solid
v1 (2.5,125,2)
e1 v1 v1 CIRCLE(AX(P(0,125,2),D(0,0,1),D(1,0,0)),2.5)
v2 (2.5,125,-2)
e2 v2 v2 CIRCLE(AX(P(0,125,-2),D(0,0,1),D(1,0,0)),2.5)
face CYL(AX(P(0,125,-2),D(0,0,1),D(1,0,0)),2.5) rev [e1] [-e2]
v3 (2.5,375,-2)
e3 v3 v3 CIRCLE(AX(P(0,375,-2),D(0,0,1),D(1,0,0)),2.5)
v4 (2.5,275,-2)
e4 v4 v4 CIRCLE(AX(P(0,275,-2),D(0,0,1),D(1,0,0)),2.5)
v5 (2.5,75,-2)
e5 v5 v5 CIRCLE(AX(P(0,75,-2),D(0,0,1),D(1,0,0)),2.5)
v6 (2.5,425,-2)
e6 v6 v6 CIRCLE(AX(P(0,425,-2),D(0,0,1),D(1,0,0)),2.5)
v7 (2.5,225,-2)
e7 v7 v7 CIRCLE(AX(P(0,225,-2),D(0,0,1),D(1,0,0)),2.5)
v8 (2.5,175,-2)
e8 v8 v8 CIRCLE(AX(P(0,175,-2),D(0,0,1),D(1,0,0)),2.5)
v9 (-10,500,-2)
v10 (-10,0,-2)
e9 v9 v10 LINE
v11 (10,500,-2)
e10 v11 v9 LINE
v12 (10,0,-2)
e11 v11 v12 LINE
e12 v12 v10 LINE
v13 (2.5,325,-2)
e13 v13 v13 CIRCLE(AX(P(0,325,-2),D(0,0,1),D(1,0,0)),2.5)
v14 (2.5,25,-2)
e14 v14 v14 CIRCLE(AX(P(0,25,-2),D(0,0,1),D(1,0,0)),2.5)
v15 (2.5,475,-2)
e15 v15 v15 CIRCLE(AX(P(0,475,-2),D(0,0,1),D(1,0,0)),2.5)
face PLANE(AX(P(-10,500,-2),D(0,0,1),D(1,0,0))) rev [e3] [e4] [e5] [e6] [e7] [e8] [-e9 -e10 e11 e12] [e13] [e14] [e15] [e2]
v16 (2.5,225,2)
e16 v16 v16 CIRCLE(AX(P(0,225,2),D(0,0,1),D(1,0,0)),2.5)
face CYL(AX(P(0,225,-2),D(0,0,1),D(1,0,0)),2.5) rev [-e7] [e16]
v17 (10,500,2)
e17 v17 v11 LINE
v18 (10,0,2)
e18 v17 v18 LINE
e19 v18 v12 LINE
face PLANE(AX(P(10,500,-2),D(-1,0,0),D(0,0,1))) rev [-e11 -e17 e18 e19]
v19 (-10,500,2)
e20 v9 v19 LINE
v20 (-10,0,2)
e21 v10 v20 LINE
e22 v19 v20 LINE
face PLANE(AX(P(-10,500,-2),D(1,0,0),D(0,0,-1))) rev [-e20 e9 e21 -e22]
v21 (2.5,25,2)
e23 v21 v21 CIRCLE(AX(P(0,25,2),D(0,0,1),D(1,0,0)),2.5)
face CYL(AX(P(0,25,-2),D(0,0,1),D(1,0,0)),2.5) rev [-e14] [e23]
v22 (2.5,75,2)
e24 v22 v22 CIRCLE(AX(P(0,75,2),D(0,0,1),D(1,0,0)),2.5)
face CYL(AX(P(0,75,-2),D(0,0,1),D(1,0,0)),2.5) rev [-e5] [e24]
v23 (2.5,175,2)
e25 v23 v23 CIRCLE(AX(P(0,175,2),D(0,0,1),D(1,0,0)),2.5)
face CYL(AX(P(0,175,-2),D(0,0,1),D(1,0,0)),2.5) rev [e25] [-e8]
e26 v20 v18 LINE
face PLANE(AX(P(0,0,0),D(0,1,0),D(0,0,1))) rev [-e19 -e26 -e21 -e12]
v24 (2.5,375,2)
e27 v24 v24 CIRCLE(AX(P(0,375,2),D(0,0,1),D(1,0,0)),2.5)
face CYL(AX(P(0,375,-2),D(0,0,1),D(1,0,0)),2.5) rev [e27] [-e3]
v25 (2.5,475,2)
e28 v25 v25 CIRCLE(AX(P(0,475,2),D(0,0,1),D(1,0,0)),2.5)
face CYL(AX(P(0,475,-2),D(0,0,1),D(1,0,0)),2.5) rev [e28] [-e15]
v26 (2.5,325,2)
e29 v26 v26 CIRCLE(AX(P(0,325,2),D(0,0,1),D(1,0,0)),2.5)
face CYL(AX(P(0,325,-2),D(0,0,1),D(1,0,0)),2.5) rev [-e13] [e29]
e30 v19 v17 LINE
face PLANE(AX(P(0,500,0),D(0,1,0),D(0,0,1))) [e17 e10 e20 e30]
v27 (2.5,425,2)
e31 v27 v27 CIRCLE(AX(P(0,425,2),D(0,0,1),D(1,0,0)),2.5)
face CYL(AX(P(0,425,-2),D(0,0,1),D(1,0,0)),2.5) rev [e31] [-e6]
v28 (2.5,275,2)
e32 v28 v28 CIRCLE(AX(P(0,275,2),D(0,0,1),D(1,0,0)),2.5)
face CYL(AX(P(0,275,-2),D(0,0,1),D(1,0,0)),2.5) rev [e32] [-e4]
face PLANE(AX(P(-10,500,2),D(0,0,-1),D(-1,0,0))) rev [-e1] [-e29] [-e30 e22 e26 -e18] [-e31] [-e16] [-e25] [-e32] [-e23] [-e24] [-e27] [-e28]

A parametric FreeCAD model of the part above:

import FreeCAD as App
import Part
import Sketcher

V = App.Vector
Q = App.Units.Quantity


def add_polygon(sketch, points):
    """Adds a closed chain of lines whose ends are joined by coincident constraints."""
    first, n = sketch.GeometryCount, len(points)
    for a, b in zip(points, points[1:] + points[:1]):
        sketch.addGeometry(Part.LineSegment(App.Vector(*a, 0), App.Vector(*b, 0)), False)
    for i in range(n):
        sketch.addConstraint(Sketcher.Constraint("Coincident", first + i, 2, first + (i + 1) % n, 1))

doc = App.newDocument("Part")
body = doc.addObject("PartDesign::Body", "Body")

sketch1 = body.newObject("Sketcher::SketchObject", "Sketch")
sketch1.AttachmentSupport = (doc.getObject("XZ_Plane"), [""])
sketch1.MapMode = "FlatFace"
add_polygon(sketch1, [(-10, -2), (-10, 2), (10, 2), (10, -2)])
sketch1.addConstraint([
    Sketcher.Constraint("Vertical", 0),
    Sketcher.Constraint("Horizontal", 1),
    Sketcher.Constraint("Vertical", 2),
    Sketcher.Constraint("Horizontal", 3),
    Sketcher.Constraint("Symmetric", 0, 2, 2, 2, -1, 1),
    Sketcher.Constraint("DistanceX", 1, 1, 1, 2, Q("20 mm")),
    Sketcher.Constraint("DistanceY", 0, 1, 0, 2, Q("4 mm")),
])
pad1 = body.newObject("PartDesign::Pad", "Pad")
pad1.Profile = sketch1
pad1.Length = 500
pad1.Reversed = True

sketch2 = body.newObject("Sketcher::SketchObject", "Sketch001")
sketch2.AttachmentSupport = (doc.getObject("XY_Plane"), [""])
sketch2.MapMode = "FlatFace"
sketch2.AttachmentOffset = App.Placement(V(0, 0, 2), App.Rotation())
sketch2.addGeometry([
    Part.Circle(V(0, 25, 0), V(0, 0, 1), 2.5),
    Part.Circle(V(0, 75, 0), V(0, 0, 1), 2.5),
    Part.Circle(V(0, 125, 0), V(0, 0, 1), 2.5),
    Part.Circle(V(0, 175, 0), V(0, 0, 1), 2.5),
    Part.Circle(V(0, 225, 0), V(0, 0, 1), 2.5),
    Part.Circle(V(0, 275, 0), V(0, 0, 1), 2.5),
    Part.Circle(V(0, 325, 0), V(0, 0, 1), 2.5),
    Part.Circle(V(0, 375, 0), V(0, 0, 1), 2.5),
    Part.Circle(V(0, 425, 0), V(0, 0, 1), 2.5),
    Part.Circle(V(0, 475, 0), V(0, 0, 1), 2.5),
], False)
sketch2.addConstraint([
    Sketcher.Constraint("Equal", 0, 1),
    Sketcher.Constraint("Equal", 1, 2),
    Sketcher.Constraint("Equal", 2, 3),
    Sketcher.Constraint("Equal", 3, 4),
    Sketcher.Constraint("Equal", 4, 5),
    Sketcher.Constraint("Equal", 5, 6),
    Sketcher.Constraint("Equal", 6, 7),
    Sketcher.Constraint("Equal", 7, 8),
    Sketcher.Constraint("Equal", 8, 9),
    Sketcher.Constraint("PointOnObject", 0, 3, -2),
    Sketcher.Constraint("PointOnObject", 1, 3, -2),
    Sketcher.Constraint("PointOnObject", 2, 3, -2),
    Sketcher.Constraint("PointOnObject", 3, 3, -2),
    Sketcher.Constraint("PointOnObject", 4, 3, -2),
    Sketcher.Constraint("PointOnObject", 5, 3, -2),
    Sketcher.Constraint("PointOnObject", 6, 3, -2),
    Sketcher.Constraint("PointOnObject", 7, 3, -2),
    Sketcher.Constraint("PointOnObject", 8, 3, -2),
    Sketcher.Constraint("PointOnObject", 9, 3, -2),
    Sketcher.Constraint("Diameter", 0, Q("5 mm")),
    Sketcher.Constraint("DistanceY", -1, 1, 0, 3, Q("25 mm")),
    Sketcher.Constraint("DistanceY", -1, 1, 1, 3, Q("75 mm")),
    Sketcher.Constraint("DistanceY", -1, 1, 2, 3, Q("125 mm")),
    Sketcher.Constraint("DistanceY", -1, 1, 3, 3, Q("175 mm")),
    Sketcher.Constraint("DistanceY", -1, 1, 4, 3, Q("225 mm")),
    Sketcher.Constraint("DistanceY", -1, 1, 5, 3, Q("275 mm")),
    Sketcher.Constraint("DistanceY", -1, 1, 6, 3, Q("325 mm")),
    Sketcher.Constraint("DistanceY", -1, 1, 7, 3, Q("375 mm")),
    Sketcher.Constraint("DistanceY", -1, 1, 8, 3, Q("425 mm")),
    Sketcher.Constraint("DistanceY", -1, 1, 9, 3, Q("475 mm")),
])
pocket1 = body.newObject("PartDesign::Pocket", "Pocket")
pocket1.Profile = sketch2
pocket1.Type = "ThroughAll"

doc.recompute()
